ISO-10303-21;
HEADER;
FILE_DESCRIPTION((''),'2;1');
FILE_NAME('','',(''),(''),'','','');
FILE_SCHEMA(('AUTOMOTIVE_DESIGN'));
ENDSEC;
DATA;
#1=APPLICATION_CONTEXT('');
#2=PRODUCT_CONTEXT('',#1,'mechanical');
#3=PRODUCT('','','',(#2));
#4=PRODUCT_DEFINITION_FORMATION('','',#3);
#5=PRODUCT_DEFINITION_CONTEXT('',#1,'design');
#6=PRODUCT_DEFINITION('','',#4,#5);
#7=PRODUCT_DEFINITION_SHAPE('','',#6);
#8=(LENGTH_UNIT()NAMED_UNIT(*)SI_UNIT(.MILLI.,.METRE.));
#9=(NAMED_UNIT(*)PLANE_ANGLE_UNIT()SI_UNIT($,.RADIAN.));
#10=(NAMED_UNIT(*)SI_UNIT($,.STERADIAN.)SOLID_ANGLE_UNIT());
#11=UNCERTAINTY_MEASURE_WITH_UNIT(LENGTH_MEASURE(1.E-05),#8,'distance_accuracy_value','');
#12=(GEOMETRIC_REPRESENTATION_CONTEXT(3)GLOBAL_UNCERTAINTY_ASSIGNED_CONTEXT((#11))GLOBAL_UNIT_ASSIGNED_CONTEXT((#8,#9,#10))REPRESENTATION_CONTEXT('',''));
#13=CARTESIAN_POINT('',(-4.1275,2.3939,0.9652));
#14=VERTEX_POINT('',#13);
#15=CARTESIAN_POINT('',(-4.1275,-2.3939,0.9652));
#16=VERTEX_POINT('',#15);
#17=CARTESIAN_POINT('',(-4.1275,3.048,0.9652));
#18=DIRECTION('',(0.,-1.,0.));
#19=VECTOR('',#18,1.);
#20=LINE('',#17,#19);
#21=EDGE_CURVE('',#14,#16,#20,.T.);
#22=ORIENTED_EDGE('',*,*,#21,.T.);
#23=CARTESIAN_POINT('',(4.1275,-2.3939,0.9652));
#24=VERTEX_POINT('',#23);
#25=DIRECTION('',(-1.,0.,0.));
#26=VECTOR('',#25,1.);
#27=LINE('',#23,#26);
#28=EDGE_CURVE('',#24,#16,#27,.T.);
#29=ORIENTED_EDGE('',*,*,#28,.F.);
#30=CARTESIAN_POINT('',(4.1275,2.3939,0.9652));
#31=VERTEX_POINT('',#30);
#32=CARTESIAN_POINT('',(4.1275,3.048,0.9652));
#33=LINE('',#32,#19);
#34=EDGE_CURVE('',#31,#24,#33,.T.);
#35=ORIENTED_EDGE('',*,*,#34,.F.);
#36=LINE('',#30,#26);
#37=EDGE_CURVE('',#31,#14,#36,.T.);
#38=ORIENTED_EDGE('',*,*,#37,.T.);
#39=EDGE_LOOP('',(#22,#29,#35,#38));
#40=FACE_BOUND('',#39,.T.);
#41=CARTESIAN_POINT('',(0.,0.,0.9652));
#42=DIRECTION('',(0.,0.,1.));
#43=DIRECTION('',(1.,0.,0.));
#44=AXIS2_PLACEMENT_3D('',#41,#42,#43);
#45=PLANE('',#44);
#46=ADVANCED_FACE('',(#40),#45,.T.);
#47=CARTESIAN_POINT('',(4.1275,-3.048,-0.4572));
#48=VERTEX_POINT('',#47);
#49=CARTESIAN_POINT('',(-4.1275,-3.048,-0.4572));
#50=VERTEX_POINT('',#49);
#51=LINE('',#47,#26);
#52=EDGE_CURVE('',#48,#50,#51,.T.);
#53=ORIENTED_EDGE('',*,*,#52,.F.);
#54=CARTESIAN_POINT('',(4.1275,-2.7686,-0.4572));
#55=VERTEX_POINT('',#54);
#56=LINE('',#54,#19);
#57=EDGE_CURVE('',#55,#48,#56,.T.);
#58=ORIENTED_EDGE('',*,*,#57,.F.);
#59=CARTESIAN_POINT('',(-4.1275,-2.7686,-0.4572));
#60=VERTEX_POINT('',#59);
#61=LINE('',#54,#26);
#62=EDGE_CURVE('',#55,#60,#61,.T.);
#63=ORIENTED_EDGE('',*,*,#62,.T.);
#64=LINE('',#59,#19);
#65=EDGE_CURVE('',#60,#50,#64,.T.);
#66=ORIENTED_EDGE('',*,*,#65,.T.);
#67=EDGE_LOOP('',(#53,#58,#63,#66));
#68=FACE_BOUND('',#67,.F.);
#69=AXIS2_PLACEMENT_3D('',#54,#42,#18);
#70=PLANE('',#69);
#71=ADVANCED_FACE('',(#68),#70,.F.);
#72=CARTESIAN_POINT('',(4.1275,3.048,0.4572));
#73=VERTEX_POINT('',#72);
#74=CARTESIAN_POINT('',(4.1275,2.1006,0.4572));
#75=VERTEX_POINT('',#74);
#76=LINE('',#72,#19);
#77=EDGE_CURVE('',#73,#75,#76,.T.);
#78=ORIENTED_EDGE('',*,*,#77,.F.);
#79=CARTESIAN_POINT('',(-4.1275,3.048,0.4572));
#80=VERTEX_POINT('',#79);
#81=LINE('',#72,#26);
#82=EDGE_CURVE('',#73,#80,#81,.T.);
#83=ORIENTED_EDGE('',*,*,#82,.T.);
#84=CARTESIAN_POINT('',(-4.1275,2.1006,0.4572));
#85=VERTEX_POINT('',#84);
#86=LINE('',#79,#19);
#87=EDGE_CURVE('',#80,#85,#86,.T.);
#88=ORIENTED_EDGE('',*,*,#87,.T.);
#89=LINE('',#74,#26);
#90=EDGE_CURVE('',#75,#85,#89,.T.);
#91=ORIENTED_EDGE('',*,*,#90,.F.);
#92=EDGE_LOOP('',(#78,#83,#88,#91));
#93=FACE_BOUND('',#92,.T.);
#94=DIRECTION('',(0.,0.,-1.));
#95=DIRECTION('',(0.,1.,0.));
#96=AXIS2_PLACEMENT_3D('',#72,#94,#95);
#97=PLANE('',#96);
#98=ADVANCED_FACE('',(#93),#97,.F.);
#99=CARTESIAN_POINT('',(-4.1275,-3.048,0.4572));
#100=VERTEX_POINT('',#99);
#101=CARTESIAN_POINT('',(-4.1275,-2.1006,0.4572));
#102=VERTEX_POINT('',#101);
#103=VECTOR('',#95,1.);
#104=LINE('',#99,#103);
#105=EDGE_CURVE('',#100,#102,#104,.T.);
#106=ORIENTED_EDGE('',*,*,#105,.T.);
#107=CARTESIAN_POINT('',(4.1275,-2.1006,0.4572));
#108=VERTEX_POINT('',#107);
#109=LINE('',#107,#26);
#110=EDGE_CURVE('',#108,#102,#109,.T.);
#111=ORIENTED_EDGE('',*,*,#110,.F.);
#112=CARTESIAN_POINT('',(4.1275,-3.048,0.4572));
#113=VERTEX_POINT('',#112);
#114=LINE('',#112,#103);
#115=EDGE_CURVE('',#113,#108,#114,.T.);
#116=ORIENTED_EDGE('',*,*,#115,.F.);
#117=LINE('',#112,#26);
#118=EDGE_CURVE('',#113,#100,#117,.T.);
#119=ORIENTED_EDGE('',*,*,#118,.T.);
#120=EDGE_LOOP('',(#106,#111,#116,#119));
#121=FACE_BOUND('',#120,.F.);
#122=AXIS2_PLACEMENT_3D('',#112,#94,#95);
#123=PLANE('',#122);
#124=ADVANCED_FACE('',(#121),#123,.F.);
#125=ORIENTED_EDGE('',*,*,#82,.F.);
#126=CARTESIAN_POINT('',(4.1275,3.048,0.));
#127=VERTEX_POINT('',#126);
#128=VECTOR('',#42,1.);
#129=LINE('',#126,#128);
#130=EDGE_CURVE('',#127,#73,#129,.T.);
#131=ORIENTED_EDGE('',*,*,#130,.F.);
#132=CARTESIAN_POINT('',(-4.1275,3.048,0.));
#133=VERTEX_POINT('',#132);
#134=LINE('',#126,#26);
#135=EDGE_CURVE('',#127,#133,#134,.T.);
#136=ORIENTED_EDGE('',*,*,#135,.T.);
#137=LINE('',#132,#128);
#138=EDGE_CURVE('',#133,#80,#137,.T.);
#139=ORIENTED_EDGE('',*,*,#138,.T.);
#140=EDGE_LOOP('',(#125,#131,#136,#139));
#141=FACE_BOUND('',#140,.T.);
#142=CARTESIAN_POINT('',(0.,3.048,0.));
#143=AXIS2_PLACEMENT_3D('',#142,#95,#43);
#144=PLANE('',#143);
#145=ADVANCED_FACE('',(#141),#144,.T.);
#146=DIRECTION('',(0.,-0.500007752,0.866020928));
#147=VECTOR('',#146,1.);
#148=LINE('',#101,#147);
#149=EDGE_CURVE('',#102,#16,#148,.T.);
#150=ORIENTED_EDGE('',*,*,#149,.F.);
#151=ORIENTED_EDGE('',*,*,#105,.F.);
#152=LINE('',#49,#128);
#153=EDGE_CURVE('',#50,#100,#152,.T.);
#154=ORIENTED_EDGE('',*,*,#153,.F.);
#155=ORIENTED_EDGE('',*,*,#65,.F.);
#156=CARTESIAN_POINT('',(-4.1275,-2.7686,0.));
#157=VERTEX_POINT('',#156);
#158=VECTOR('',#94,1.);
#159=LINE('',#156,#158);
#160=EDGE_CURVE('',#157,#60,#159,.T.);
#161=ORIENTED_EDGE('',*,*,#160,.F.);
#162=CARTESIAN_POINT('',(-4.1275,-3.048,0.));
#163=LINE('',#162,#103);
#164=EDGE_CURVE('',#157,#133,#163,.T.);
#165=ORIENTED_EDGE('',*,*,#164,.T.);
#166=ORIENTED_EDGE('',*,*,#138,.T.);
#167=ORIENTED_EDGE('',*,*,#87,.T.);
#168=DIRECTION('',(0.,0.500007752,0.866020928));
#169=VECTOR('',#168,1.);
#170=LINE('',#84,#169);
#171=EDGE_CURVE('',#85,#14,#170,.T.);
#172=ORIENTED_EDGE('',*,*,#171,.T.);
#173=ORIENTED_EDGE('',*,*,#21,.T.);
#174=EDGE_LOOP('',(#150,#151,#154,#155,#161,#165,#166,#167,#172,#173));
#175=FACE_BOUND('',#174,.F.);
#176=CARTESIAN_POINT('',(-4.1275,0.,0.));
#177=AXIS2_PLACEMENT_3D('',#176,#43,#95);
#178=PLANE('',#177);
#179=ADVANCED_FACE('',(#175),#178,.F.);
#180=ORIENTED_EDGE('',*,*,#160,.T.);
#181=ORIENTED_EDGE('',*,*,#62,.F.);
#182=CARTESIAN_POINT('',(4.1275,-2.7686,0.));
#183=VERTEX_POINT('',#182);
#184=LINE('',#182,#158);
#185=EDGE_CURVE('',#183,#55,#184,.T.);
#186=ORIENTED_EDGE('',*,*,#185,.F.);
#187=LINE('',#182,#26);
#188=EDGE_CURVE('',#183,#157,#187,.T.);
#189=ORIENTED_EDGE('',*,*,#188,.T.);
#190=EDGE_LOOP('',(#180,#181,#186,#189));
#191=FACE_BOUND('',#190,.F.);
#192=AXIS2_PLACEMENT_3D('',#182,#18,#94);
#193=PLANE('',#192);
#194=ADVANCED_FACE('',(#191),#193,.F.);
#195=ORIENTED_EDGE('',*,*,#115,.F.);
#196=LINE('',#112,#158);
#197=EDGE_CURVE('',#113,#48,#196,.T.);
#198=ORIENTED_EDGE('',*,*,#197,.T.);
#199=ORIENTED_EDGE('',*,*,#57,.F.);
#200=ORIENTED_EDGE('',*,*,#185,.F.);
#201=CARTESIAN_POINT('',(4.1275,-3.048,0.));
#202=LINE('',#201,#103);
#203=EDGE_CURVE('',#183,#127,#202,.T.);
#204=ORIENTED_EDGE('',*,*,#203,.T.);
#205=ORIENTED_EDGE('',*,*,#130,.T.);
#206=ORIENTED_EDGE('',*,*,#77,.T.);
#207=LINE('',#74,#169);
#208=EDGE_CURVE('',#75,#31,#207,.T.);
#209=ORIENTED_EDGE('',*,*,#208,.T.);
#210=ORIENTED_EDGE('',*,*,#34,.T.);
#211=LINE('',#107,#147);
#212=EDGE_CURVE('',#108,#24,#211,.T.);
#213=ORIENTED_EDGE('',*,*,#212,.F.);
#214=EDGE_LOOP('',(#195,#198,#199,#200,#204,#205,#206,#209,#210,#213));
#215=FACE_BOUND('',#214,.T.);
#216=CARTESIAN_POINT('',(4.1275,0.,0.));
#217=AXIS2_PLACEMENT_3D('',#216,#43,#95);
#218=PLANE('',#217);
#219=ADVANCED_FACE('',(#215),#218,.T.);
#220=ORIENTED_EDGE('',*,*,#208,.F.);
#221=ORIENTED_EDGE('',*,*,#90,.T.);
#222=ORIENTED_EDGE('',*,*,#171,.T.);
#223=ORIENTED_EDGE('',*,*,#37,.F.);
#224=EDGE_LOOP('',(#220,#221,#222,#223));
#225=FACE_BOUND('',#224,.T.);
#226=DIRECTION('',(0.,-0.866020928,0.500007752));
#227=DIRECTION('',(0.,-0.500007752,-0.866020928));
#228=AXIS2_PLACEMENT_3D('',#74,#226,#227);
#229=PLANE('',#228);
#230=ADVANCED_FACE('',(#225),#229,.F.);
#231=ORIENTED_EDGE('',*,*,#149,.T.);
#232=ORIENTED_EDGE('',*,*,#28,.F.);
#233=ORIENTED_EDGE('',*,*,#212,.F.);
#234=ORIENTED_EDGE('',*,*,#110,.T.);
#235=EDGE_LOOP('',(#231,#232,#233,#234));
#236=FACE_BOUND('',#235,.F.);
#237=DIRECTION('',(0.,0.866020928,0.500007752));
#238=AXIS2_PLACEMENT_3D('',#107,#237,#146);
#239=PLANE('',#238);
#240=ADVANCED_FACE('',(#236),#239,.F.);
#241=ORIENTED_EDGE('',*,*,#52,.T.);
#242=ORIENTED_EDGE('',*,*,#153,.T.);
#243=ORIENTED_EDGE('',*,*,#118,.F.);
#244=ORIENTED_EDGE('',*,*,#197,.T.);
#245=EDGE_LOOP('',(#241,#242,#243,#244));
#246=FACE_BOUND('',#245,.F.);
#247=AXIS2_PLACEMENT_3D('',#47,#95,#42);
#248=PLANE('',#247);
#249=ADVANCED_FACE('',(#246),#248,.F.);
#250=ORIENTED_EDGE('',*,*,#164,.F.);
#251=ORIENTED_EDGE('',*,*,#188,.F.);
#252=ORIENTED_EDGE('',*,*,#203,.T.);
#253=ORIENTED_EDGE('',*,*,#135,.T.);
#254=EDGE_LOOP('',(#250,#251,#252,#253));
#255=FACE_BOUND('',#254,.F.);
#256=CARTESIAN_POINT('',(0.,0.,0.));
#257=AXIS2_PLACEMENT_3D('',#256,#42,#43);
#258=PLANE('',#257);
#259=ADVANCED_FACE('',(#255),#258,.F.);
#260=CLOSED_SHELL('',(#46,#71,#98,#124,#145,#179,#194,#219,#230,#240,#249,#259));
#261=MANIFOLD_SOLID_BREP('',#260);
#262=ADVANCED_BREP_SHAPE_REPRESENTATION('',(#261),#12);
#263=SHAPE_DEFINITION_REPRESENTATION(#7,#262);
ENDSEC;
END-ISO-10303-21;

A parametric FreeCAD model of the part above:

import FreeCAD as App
import Part
import Sketcher
from FreeCAD import Vector
Q = App.Units.Quantity

doc = App.newDocument("Part")
body = doc.addObject("PartDesign::Body", "Body")

# Sketch on XY plane
sketch1 = body.newObject("Sketcher::SketchObject", "Sketch")
sketch1.AttachmentSupport = (doc.getObject("XY_Plane"), [""])
sketch1.MapMode = "FlatFace"
sketch1.addGeometry([
    Part.LineSegment(Vector(4, 3, 0), Vector(-4, 3, 0)),
    Part.LineSegment(Vector(-4, 3, 0), Vector(-4, -3, 0)),
    Part.LineSegment(Vector(-4, -3, 0), Vector(4, -3, 0)),
    Part.LineSegment(Vector(4, -3, 0), Vector(4, 3, 0)),
], False)
sketch1.addConstraint([
    Sketcher.Constraint("Coincident", 0, 2, 1, 1),
    Sketcher.Constraint("Coincident", 1, 2, 2, 1),
    Sketcher.Constraint("Coincident", 2, 2, 3, 1),
    Sketcher.Constraint("Coincident", 3, 2, 0, 1),
    Sketcher.Constraint("Horizontal", 0),
    Sketcher.Constraint("Vertical", 1),
    Sketcher.Constraint("Horizontal", 2),
    Sketcher.Constraint("Vertical", 3),
    Sketcher.Constraint("Symmetric", 0, 2, 2, 2, -1, 1),
    Sketcher.Constraint("DistanceY", 1, 2, 1, 1, Q("0.24 in")),
    Sketcher.Constraint("DistanceX", 0, 2, 0, 1, Q("0.325 in")),
])
pad1 = body.newObject("PartDesign::Pad", "Pad")
pad1.Profile = sketch1
pad1.Length = Q("0.038 in")

# Sketch on YZ plane
sketch2 = body.newObject("Sketcher::SketchObject", "Sketch001")
sketch2.AttachmentSupport = (doc.getObject("YZ_Plane"), [""])
sketch2.MapMode = "FlatFace"
sketch2.AttachmentOffset = App.Placement(Vector(0, 0, 0.1625 * 25.4), App.Rotation())
sketch2.addGeometry([
    Part.LineSegment(Vector(-3, 1, 0), Vector(-3, 0.5, 0)),
    Part.LineSegment(Vector(-3, 0.5, 0), Vector(-2.1, 0.5, 0)),
    Part.LineSegment(Vector(-2.1, 0.5, 0), Vector(-2.4, 1, 0)),
    Part.LineSegment(Vector(-2.4, 1, 0), Vector(-3, 1, 0)),
], False)
sketch2.addConstraint([
    Sketcher.Constraint("Coincident", 0, 2, 1, 1),
    Sketcher.Constraint("Coincident", 1, 2, 2, 1),
    Sketcher.Constraint("Coincident", 2, 2, 3, 1),
    Sketcher.Constraint("Coincident", 3, 2, 0, 1),
    Sketcher.Constraint("Vertical", 0),
    Sketcher.Constraint("Horizontal", 1),
    Sketcher.Constraint("Horizontal", 3),
    Sketcher.Constraint("DistanceY", 0, 2, 0, 1, Q("0.02 in")),
    Sketcher.Constraint("DistanceX", 1, 1, 1, 2, Q("0.0373 in")),
    Sketcher.Constraint("Angle", 2, Q("120.0005 deg")),
    Sketcher.Constraint("DistanceX", 1, 2, -1, 1, Q("0.0827 in")),
    Sketcher.Constraint("DistanceY", -1, 1, 0, 2, Q("0.018 in")),
])
pocket1 = body.newObject("PartDesign::Pocket", "Pocket")
pocket1.Profile = sketch2
pocket1.Length = Q("0.325 in")
doc.recompute()

mirrored = body.newObject("PartDesign::Mirrored", "Mirrored")
mirrored.Originals = [pocket1]
mirrored.MirrorPlane = (doc.getObject("XZ_Plane"), [""])
body.Tip = mirrored

# Sketch on YZ plane
sketch3 = body.newObject("Sketcher::SketchObject", "Sketch002")
sketch3.AttachmentSupport = (doc.getObject("YZ_Plane"), [""])
sketch3.MapMode = "FlatFace"
sketch3.AttachmentOffset = App.Placement(Vector(0, 0, 0.1625 * 25.4), App.Rotation())
sketch3.addGeometry([
    Part.LineSegment(Vector(-2.77, -0.46, 0), Vector(-2.77, 0, 0)),
    Part.LineSegment(Vector(-2.77, 0, 0), Vector(-3.05, 0, 0)),
    Part.LineSegment(Vector(-3.05, 0, 0), Vector(-3.05, -0.46, 0)),
    Part.LineSegment(Vector(-3.05, -0.46, 0), Vector(-2.77, -0.46, 0)),
], False)
sketch3.addConstraint([
    Sketcher.Constraint("Coincident", 0, 2, 1, 1),
    Sketcher.Constraint("Coincident", 1, 2, 2, 1),
    Sketcher.Constraint("Coincident", 2, 2, 3, 1),
    Sketcher.Constraint("Coincident", 3, 2, 0, 1),
    Sketcher.Constraint("Vertical", 0),
    Sketcher.Constraint("Horizontal", 1),
    Sketcher.Constraint("Vertical", 2),
    Sketcher.Constraint("Horizontal", 3),
    Sketcher.Constraint("PointOnObject", 0, 2, -1),
    Sketcher.Constraint("DistanceY", 0, 1, 0, 2, Q("0.018 in")),
    Sketcher.Constraint("DistanceX", 1, 2, 1, 1, Q("0.011 in")),
    Sketcher.Constraint("DistanceX", 1, 2, -1, 1, Q("0.12 in")),
])
pad2 = body.newObject("PartDesign::Pad", "Pad001")
pad2.Profile = sketch3
pad2.Length = Q("0.325 in")
pad2.Reversed = True

doc.recompute()
